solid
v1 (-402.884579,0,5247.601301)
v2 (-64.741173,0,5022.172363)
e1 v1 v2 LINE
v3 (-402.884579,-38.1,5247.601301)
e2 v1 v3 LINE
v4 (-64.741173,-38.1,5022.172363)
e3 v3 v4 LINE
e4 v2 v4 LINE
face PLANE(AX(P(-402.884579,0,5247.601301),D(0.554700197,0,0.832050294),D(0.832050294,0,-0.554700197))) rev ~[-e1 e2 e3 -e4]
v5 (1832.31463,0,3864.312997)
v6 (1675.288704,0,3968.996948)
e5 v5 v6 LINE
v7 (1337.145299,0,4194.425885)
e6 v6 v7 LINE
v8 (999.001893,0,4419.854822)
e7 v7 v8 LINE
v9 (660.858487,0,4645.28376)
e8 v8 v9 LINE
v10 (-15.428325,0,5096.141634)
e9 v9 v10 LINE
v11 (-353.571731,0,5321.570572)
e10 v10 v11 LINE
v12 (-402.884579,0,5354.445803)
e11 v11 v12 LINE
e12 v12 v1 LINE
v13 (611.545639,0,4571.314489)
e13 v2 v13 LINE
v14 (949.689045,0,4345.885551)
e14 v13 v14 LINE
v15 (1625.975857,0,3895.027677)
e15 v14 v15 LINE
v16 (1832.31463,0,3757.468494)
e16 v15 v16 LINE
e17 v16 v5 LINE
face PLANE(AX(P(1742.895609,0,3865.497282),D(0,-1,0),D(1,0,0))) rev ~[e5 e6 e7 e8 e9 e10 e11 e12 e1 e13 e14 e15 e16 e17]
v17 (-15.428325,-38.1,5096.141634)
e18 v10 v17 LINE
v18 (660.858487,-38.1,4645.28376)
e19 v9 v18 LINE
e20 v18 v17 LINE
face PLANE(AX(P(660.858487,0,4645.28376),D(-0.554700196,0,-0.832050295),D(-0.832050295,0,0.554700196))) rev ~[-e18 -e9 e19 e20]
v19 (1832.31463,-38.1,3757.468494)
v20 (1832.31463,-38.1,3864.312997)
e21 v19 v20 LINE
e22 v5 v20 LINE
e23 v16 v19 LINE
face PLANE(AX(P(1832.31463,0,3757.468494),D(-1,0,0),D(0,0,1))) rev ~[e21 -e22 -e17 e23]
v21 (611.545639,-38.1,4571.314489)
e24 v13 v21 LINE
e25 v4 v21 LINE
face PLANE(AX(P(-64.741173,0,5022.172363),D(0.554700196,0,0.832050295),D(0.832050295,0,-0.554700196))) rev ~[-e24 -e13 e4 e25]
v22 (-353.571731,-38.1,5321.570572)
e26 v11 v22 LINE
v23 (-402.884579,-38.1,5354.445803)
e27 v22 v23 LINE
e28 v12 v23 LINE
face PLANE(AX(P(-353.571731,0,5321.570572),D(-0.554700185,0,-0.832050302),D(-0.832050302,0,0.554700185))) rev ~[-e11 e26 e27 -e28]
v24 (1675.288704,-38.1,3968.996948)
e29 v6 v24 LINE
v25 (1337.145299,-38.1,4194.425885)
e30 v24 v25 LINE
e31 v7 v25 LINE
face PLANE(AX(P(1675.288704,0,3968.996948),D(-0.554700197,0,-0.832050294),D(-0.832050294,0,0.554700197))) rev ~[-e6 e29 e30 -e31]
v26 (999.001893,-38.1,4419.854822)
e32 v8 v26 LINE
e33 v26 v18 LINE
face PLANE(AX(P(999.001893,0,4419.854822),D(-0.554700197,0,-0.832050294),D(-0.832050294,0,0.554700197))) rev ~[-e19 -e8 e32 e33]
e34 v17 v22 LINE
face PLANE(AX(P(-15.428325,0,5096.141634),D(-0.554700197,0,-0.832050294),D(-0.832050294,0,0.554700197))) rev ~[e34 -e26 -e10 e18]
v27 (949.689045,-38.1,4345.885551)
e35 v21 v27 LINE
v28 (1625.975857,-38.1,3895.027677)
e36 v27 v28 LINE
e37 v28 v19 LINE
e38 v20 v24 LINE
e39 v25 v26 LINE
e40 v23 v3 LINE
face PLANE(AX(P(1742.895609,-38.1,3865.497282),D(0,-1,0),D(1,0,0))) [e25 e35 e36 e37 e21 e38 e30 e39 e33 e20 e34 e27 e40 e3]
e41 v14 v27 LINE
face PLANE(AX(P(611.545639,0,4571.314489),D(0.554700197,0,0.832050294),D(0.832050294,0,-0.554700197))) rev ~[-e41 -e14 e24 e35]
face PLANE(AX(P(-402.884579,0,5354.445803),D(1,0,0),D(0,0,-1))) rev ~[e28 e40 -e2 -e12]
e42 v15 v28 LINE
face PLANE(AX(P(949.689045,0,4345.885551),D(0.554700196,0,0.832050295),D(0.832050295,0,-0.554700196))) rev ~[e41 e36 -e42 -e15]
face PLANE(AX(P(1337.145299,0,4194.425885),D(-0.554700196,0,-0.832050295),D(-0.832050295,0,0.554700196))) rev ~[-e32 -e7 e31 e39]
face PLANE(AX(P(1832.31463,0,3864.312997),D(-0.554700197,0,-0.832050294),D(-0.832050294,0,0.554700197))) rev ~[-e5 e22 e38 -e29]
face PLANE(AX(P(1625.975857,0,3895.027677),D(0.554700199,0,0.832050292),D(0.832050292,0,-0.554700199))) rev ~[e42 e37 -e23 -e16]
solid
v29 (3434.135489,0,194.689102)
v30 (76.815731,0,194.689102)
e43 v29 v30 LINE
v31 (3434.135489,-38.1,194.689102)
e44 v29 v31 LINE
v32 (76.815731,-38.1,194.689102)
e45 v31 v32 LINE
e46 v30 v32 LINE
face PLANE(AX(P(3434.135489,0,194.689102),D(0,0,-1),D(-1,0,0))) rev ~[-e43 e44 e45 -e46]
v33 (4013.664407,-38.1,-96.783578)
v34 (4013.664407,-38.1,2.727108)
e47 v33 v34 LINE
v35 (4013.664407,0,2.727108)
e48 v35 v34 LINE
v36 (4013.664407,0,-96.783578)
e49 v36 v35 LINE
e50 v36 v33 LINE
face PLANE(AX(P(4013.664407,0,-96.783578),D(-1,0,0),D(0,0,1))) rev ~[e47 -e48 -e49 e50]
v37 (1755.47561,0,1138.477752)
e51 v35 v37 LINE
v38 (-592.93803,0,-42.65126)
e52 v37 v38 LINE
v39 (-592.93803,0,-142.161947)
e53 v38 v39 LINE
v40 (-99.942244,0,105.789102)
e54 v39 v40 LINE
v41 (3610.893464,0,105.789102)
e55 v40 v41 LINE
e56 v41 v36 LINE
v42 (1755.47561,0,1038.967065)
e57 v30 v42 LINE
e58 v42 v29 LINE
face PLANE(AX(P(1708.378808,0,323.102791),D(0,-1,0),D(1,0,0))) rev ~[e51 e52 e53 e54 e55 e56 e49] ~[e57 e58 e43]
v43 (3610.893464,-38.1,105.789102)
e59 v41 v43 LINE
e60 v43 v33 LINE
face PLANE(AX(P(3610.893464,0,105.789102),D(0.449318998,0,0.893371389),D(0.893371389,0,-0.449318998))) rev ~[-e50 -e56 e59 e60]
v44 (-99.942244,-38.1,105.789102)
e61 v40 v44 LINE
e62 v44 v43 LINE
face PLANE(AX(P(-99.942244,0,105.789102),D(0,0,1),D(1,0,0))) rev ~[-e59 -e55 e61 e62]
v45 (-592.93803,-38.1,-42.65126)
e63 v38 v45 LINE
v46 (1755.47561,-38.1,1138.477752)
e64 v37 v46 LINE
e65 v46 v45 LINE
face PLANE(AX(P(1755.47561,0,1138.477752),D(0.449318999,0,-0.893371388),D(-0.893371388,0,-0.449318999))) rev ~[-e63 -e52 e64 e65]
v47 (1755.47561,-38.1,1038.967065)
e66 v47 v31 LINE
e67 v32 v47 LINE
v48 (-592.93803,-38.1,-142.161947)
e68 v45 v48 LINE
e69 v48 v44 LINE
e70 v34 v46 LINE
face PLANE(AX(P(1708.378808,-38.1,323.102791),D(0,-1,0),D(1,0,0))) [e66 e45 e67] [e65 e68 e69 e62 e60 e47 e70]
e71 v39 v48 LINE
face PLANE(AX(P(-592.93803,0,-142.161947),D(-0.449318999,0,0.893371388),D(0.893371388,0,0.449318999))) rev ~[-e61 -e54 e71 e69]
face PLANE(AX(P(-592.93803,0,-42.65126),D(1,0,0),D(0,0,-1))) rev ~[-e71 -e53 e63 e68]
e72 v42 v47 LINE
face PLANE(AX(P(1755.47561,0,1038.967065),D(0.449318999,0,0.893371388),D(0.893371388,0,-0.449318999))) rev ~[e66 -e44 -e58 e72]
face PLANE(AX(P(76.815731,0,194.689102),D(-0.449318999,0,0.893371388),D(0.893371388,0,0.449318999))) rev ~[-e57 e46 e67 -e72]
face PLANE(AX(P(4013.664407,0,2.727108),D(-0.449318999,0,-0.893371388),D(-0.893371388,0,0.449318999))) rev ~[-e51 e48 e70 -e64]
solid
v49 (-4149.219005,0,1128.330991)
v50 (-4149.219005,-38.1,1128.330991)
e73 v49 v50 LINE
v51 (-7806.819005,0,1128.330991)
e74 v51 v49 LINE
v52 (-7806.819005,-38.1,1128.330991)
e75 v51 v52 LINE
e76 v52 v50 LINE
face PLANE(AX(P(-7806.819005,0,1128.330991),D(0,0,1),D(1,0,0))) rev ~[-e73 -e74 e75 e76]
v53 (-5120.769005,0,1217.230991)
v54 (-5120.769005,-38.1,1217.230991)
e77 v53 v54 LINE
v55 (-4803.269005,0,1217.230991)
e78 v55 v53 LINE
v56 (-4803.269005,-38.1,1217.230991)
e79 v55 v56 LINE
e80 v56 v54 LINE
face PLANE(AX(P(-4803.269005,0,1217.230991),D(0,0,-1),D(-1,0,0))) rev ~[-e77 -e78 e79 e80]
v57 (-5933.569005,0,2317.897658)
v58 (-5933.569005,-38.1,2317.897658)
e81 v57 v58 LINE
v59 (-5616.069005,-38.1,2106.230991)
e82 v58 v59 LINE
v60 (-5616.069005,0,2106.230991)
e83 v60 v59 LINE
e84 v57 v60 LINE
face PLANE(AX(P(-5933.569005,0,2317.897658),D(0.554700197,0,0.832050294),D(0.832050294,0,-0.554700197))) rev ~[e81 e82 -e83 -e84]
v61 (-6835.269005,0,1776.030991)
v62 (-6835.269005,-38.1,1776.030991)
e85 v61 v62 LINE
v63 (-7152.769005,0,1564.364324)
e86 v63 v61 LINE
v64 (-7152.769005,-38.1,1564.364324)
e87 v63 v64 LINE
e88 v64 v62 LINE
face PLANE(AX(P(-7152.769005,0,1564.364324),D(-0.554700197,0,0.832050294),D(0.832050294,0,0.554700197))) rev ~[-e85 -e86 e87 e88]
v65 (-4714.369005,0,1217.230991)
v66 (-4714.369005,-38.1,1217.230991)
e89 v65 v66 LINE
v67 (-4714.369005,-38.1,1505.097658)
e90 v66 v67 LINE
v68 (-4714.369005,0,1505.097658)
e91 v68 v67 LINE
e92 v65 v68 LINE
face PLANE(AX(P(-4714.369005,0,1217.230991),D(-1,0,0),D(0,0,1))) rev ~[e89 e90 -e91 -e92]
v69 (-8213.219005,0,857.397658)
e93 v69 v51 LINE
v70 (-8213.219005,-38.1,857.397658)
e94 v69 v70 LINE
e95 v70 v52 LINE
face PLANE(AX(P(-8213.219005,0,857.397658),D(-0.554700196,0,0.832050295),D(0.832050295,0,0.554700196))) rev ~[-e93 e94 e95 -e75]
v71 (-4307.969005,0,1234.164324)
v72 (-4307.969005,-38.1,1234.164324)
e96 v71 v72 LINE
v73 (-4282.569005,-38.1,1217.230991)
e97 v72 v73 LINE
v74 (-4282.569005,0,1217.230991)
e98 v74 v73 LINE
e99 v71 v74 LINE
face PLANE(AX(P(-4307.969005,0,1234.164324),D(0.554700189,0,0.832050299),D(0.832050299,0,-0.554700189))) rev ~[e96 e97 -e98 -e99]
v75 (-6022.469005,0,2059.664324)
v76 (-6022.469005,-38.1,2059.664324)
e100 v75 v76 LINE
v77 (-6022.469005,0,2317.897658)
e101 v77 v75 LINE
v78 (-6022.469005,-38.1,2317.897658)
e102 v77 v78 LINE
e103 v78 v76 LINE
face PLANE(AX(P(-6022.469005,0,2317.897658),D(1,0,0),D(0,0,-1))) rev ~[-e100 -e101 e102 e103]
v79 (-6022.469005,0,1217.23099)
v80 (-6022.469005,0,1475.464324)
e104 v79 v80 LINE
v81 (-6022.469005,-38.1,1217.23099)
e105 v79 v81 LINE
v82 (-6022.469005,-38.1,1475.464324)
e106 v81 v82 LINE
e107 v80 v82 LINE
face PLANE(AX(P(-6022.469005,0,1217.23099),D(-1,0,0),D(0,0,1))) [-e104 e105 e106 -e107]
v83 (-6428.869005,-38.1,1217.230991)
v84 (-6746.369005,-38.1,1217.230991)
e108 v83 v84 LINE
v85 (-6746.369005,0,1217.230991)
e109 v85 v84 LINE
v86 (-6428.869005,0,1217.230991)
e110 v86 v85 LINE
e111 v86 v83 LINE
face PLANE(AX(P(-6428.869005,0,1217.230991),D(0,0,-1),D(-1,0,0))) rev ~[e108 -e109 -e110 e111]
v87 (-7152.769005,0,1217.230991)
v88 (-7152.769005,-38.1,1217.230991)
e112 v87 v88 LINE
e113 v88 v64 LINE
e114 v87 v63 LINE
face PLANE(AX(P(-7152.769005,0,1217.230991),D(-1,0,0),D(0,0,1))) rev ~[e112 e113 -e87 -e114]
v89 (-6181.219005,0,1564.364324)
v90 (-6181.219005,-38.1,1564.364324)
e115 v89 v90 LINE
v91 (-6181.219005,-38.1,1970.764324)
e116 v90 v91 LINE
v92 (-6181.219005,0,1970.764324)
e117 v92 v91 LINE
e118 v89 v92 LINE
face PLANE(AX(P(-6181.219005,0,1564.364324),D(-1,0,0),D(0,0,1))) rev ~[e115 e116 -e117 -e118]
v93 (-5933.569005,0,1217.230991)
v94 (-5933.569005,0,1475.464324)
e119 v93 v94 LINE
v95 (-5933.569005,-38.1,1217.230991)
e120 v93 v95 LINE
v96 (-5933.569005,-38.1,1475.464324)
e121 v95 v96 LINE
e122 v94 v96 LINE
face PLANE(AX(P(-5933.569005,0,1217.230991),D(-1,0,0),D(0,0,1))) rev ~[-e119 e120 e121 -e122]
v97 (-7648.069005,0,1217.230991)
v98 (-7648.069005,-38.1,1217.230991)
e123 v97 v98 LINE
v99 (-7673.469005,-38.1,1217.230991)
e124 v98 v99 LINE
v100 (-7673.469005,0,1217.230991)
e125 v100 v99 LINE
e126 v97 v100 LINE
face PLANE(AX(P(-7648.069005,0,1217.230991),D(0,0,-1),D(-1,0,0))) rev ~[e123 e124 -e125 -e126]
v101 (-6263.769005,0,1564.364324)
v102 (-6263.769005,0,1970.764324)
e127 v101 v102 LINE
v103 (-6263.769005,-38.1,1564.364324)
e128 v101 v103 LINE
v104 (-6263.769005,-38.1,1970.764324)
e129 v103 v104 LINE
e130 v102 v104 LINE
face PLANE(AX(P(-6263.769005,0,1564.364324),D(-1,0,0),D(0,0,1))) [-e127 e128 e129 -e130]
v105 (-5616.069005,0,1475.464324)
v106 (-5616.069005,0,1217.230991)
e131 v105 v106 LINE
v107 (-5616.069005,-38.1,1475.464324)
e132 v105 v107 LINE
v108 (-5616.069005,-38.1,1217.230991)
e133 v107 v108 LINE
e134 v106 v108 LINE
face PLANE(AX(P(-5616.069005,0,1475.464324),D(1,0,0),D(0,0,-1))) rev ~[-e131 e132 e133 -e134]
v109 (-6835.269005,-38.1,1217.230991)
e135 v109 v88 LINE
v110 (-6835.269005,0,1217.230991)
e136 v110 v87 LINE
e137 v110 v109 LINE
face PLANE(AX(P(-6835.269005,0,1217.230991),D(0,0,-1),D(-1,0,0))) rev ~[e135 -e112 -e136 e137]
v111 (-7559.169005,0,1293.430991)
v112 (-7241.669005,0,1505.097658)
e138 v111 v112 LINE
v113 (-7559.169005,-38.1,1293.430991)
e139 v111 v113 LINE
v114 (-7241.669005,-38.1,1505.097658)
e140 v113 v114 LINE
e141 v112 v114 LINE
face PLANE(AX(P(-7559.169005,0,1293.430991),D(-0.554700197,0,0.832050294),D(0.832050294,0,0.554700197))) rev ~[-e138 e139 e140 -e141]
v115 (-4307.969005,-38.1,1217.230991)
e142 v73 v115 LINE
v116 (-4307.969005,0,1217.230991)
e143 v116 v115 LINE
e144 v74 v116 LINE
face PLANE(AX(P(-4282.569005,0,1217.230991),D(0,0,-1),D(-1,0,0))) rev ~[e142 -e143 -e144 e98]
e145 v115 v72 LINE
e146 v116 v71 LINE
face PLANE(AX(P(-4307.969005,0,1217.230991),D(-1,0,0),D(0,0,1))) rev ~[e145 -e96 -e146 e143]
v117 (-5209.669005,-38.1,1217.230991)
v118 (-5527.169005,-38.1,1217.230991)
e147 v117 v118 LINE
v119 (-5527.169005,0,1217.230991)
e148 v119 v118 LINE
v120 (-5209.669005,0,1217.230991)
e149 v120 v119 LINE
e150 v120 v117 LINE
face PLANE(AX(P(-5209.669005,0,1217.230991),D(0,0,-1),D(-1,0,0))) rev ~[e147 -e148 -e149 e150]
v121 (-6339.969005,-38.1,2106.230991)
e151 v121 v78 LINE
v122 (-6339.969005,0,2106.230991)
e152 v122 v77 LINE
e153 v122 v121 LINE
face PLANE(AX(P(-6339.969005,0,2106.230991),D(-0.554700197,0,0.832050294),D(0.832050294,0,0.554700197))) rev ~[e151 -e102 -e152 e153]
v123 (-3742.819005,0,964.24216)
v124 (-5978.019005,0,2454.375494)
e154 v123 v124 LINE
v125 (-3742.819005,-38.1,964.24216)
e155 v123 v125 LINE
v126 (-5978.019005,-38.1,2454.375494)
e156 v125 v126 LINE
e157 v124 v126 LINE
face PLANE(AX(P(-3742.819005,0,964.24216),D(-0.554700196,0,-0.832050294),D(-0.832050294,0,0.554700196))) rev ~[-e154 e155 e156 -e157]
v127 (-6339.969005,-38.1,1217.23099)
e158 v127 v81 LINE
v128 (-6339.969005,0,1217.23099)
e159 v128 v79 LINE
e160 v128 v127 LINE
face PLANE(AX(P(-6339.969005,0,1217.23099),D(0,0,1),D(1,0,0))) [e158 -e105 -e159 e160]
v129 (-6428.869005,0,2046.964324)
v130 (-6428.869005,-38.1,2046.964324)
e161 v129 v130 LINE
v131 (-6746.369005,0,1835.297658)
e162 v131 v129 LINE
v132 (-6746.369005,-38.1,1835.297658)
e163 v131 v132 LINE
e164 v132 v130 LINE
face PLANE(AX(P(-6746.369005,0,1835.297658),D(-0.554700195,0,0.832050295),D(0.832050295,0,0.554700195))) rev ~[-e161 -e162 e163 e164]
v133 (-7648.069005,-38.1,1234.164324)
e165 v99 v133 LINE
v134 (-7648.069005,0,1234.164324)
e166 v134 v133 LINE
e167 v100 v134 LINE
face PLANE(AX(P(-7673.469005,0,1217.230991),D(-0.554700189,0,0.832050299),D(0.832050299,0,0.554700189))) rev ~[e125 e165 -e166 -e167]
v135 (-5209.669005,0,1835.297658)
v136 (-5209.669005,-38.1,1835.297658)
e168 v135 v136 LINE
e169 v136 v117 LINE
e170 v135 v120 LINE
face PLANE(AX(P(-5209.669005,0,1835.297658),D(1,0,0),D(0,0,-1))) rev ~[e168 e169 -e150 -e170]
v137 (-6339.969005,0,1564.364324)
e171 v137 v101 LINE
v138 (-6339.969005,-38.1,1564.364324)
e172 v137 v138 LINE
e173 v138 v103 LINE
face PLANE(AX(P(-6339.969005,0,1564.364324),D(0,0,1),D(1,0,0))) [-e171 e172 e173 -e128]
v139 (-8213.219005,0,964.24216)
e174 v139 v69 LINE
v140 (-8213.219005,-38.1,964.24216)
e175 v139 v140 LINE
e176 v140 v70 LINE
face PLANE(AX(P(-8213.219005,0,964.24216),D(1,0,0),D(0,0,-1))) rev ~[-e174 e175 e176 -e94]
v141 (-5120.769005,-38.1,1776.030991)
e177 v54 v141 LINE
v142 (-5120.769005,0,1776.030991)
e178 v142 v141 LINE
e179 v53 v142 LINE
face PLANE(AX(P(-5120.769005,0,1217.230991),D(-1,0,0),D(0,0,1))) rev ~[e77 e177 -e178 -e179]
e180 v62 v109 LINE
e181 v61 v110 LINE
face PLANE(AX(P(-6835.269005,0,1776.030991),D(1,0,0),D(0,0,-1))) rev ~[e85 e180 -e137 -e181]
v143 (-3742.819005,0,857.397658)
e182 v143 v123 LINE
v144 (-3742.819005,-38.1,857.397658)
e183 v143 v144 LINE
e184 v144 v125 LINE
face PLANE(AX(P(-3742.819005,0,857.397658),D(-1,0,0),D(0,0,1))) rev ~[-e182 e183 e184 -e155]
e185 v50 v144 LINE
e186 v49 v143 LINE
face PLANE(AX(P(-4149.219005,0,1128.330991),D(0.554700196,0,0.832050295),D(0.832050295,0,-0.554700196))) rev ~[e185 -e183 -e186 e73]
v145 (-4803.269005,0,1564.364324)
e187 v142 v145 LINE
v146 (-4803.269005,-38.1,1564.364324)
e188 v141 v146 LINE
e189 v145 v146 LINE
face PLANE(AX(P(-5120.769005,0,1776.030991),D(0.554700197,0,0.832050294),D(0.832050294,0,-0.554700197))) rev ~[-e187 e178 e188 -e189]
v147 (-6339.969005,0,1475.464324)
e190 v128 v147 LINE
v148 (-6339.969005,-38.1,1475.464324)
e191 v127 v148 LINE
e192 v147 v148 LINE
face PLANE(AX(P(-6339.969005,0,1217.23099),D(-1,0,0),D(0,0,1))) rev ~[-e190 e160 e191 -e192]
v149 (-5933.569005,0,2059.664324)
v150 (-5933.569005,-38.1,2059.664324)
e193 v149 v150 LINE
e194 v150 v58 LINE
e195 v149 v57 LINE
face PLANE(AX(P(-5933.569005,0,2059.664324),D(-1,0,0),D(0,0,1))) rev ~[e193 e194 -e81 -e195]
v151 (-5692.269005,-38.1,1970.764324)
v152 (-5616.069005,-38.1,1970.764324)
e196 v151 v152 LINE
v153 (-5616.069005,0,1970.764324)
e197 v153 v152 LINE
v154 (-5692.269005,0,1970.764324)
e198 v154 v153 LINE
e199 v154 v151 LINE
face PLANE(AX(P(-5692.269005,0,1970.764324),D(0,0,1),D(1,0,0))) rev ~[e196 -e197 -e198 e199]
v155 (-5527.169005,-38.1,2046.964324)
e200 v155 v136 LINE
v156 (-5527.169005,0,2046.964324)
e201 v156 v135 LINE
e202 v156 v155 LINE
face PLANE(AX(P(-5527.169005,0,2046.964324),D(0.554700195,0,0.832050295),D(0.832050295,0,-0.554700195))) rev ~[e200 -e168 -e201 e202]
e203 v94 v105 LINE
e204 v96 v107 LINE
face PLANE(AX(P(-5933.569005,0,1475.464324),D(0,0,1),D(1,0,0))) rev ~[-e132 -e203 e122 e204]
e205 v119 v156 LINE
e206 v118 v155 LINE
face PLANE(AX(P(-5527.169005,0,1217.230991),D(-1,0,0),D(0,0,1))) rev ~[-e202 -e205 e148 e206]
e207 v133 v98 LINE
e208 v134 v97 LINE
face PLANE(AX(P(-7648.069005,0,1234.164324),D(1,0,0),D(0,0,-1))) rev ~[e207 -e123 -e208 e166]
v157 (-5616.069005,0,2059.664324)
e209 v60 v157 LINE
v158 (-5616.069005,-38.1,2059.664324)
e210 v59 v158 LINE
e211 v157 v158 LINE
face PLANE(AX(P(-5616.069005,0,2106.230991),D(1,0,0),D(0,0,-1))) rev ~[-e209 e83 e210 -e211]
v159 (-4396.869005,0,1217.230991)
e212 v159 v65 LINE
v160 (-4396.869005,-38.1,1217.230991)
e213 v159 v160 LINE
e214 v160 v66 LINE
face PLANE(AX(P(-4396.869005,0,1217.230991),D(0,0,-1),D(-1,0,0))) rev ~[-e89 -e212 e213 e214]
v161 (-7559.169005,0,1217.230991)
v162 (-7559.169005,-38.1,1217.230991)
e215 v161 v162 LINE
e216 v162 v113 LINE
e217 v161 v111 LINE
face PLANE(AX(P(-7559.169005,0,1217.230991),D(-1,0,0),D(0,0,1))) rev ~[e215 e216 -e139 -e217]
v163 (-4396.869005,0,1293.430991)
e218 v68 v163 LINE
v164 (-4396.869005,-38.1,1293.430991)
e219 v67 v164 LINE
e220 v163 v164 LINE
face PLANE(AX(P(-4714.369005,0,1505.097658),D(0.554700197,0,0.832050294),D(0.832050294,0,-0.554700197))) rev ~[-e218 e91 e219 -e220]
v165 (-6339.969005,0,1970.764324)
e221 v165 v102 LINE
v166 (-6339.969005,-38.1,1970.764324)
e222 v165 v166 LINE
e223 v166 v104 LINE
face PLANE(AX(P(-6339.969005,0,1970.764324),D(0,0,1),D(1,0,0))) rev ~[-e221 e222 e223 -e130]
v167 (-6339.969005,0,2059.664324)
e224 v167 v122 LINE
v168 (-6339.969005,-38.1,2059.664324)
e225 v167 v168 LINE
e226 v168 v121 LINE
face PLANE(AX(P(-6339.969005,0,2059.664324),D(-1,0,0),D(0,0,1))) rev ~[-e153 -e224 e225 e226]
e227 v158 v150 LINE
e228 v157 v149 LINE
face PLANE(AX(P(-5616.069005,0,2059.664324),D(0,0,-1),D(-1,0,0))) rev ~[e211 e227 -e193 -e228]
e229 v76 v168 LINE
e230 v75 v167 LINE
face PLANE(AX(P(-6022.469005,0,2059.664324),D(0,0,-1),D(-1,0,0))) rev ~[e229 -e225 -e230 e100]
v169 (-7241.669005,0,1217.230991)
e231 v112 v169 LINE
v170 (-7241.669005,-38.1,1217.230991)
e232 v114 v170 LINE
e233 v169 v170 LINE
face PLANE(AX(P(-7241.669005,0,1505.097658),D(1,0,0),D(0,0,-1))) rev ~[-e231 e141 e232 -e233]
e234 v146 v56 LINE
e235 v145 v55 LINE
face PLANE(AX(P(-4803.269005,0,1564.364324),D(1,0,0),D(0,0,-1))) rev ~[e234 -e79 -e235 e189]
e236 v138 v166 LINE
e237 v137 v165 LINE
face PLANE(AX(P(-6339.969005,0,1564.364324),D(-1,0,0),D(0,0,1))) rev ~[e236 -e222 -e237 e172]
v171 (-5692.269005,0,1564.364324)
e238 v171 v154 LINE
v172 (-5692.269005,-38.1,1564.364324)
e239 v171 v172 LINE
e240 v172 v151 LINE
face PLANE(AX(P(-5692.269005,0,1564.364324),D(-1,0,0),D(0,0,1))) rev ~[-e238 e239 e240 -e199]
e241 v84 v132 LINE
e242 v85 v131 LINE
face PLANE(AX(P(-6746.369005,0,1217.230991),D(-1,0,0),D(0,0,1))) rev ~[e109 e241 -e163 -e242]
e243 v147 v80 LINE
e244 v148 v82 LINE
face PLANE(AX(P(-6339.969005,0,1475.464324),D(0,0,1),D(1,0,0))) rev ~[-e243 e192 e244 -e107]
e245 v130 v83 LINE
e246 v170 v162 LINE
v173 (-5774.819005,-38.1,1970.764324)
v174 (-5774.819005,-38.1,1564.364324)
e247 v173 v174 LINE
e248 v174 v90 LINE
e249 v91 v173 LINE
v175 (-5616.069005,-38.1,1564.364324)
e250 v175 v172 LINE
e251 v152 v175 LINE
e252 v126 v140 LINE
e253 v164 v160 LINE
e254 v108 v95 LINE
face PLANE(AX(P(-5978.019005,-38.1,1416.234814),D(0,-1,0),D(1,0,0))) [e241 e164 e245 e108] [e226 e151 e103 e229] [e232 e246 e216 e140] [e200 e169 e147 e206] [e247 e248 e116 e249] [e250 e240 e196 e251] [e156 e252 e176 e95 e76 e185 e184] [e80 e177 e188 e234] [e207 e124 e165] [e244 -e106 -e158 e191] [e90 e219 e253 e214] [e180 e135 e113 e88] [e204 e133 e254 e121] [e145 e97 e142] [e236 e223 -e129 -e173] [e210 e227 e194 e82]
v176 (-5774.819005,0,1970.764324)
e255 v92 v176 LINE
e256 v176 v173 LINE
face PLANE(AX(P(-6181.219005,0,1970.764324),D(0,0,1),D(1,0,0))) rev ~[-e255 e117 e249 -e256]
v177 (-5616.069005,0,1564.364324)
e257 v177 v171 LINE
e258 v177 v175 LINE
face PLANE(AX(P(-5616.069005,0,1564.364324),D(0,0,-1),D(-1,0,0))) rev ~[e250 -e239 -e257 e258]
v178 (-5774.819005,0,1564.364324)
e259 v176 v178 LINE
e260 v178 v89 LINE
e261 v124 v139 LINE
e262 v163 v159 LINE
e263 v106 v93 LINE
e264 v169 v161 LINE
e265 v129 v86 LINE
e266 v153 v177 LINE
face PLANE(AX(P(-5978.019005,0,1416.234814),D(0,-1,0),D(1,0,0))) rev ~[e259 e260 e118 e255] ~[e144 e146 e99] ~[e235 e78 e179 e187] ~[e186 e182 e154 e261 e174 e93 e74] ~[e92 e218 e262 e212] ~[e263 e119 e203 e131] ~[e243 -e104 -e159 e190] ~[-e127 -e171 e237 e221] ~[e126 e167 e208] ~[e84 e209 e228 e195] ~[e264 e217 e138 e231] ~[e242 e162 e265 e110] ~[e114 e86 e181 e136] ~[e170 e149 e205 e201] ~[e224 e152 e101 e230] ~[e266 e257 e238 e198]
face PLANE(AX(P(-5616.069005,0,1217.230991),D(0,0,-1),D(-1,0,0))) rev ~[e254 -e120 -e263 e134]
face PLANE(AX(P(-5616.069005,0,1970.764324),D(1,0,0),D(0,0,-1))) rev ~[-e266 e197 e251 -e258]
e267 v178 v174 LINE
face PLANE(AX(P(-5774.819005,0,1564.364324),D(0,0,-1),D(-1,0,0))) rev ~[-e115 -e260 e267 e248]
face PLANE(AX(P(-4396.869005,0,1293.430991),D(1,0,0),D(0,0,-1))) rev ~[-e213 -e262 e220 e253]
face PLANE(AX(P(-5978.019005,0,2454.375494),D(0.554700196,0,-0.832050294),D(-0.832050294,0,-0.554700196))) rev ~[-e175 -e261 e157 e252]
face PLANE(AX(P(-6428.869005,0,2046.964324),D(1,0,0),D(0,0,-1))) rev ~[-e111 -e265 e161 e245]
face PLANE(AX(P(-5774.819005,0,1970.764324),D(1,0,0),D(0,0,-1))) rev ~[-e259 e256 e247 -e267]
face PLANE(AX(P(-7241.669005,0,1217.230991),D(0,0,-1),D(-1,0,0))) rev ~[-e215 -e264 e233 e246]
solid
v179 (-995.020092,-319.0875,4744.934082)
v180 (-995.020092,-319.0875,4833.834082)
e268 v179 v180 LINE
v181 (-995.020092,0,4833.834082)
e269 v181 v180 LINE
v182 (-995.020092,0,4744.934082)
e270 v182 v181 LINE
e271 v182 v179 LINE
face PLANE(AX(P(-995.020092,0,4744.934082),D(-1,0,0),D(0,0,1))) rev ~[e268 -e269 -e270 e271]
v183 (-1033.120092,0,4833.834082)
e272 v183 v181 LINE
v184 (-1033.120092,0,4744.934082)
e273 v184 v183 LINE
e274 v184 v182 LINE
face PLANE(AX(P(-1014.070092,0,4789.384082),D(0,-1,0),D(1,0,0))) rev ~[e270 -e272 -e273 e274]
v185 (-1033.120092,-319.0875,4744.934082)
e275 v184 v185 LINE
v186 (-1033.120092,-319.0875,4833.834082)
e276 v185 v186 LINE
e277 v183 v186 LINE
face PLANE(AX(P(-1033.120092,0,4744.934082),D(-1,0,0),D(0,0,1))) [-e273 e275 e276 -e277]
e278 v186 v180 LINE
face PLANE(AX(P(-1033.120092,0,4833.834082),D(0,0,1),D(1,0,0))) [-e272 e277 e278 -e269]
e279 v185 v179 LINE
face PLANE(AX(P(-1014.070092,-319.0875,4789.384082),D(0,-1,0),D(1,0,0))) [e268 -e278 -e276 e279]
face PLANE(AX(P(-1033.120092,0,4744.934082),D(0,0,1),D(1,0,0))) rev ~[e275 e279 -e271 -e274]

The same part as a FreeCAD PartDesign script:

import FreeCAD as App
import Part
import Sketcher

V = App.Vector
Q = App.Units.Quantity

doc = App.newDocument("Part")
body = doc.addObject("PartDesign::Body", "Body")

# Sketch on XZ plane
sketch1 = body.newObject("Sketcher::SketchObject", "Sketch")
sketch1.AttachmentSupport = (doc.getObject("XZ_Plane"), [""])
sketch1.MapMode = "FlatFace"
sketch1.addGeometry([
    Part.LineSegment(V(-593, -142, 0), V(-100, 106, 0)),  # 0
    Part.LineSegment(V(-100, 106, 0), V(3611, 106, 0)),  # 1
    Part.LineSegment(V(3611, 106, 0), V(4014, -97, 0)),  # 2
    Part.LineSegment(V(4014, -97, 0), V(4014, 3, 0)),  # 3
    Part.LineSegment(V(4014, 3, 0), V(1755, 1138, 0)),  # 4
    Part.LineSegment(V(1755, 1138, 0), V(-593, -43, 0)),  # 5
    Part.LineSegment(V(-593, -43, 0), V(-593, -142, 0)),  # 6
    Part.LineSegment(V(1755, 1039, 0), V(3434, 195, 0)),  # 7
    Part.LineSegment(V(3434, 195, 0), V(77, 195, 0)),  # 8
    Part.LineSegment(V(77, 195, 0), V(1755, 1039, 0)),  # 9
], False)
sketch1.addConstraint([
    Sketcher.Constraint("Coincident", 0, 2, 1, 1),
    Sketcher.Constraint("Coincident", 1, 2, 2, 1),
    Sketcher.Constraint("Coincident", 2, 2, 3, 1),
    Sketcher.Constraint("Coincident", 3, 2, 4, 1),
    Sketcher.Constraint("Coincident", 4, 2, 5, 1),
    Sketcher.Constraint("Coincident", 5, 2, 6, 1),
    Sketcher.Constraint("Coincident", 6, 2, 0, 1),
    Sketcher.Constraint("Coincident", 7, 2, 8, 1),
    Sketcher.Constraint("Coincident", 8, 2, 9, 1),
    Sketcher.Constraint("Coincident", 9, 2, 7, 1),
    Sketcher.Constraint("Horizontal", 1),
    Sketcher.Constraint("Vertical", 3),
    Sketcher.Constraint("Vertical", 6),
    Sketcher.Constraint("Horizontal", 8),
    Sketcher.Constraint("Parallel", 2, 4),
    Sketcher.Constraint("Parallel", 0, 5),
    Sketcher.Constraint("Parallel", 4, 7),
    Sketcher.Constraint("Parallel", 5, 9),
    Sketcher.Constraint("Vertical", 4, 2, 9, 2),
    Sketcher.Constraint("Equal", 3, 6),
    Sketcher.Constraint("Equal", 7, 9),
    Sketcher.Constraint("Angle", 0, Q("26.7 deg")),
    Sketcher.Constraint("DistanceY", 1, 2, 7, 2, Q("3.5 in")),
    Sketcher.Constraint("DistanceX", 1, 1, 1, 2, Q("3710.835708 mm")),
    Sketcher.Constraint("DistanceY", -1, 1, 0, 2, Q("105.789102 mm")),
    Sketcher.Constraint("DistanceY", 6, 2, 4, 2, Q("1280.639699 mm")),
    Sketcher.Constraint("Distance", 2, Q("450.84379 mm")),
    Sketcher.Constraint("Distance", 5, Q("2628.709259 mm")),
    Sketcher.Constraint("DistanceX", 8, 2, 8, 1, Q("3357.319758 mm")),
    Sketcher.Constraint("DistanceX", -1, 1, 4, 2, Q("1755.47561 mm")),
])
pad1 = body.newObject("PartDesign::Pad", "Pad")
pad1.Profile = sketch1
pad1.Length = Q("1.5 in")
body2 = doc.addObject("PartDesign::Body", "Body001")

# Sketch on XZ plane
sketch2 = body2.newObject("Sketcher::SketchObject", "Sketch001")
sketch2.AttachmentSupport = (doc.getObject("XZ_Plane001"), [""])
sketch2.MapMode = "FlatFace"
sketch2.addGeometry([
    Part.LineSegment(V(-8213.219005, 857.397658, 0), V(-7806.819005, 1128.330991, 0)),  # 0
    Part.LineSegment(V(-7806.819005, 1128.330991, 0), V(-4149.219005, 1128.330991, 0)),  # 1
    Part.LineSegment(V(-4149.219005, 1128.330991, 0), V(-3742.819005, 857.397658, 0)),  # 2
    Part.LineSegment(V(-3742.819005, 857.397658, 0), V(-3742.819005, 964.24216, 0)),  # 3
    Part.LineSegment(V(-3742.819005, 964.24216, 0), V(-5978.019005, 2454.375494, 0)),  # 4
    Part.LineSegment(V(-5978.019005, 2454.375494, 0), V(-8213.219005, 964.24216, 0)),  # 5
    Part.LineSegment(V(-8213.219005, 964.24216, 0), V(-8213.219005, 857.397658, 0)),  # 6
    Part.LineSegment(V(-7673.469005, 1217.230991, 0), V(-7648.069005, 1234.164324, 0)),  # 7
    Part.LineSegment(V(-7648.069005, 1234.164324, 0), V(-7648.069005, 1217.230991, 0)),  # 8
    Part.LineSegment(V(-7648.069005, 1217.230991, 0), V(-7673.469005, 1217.230991, 0)),  # 9
    Part.LineSegment(V(-7559.169005, 1293.430991, 0), V(-7241.669005, 1505.097658, 0)),  # 10
    Part.LineSegment(V(-7241.669005, 1505.097658, 0), V(-7241.669005, 1217.230991, 0)),  # 11
    Part.LineSegment(V(-7241.669005, 1217.230991, 0), V(-7559.169005, 1217.230991, 0)),  # 12
    Part.LineSegment(V(-7559.169005, 1217.230991, 0), V(-7559.169005, 1293.430991, 0)),  # 13
    Part.LineSegment(V(-6022.469005, 1217.23099, 0), V(-6339.969005, 1217.23099, 0)),  # 14
    Part.LineSegment(V(-6339.969005, 1217.23099, 0), V(-6339.969005, 1475.464324, 0)),  # 15
    Part.LineSegment(V(-6339.969005, 1475.464324, 0), V(-6022.469005, 1475.464324, 0)),  # 16
    Part.LineSegment(V(-6022.469005, 1475.464324, 0), V(-6022.469005, 1217.23099, 0)),  # 17
    Part.LineSegment(V(-7152.769005, 1564.364324, 0), V(-6835.269005, 1776.030991, 0)),  # 18
    Part.LineSegment(V(-6835.269005, 1776.030991, 0), V(-6835.269005, 1217.230991, 0)),  # 19
    Part.LineSegment(V(-6835.269005, 1217.230991, 0), V(-7152.769005, 1217.230991, 0)),  # 20
    Part.LineSegment(V(-7152.769005, 1217.230991, 0), V(-7152.769005, 1564.364324, 0)),  # 21
    Part.LineSegment(V(-6746.369005, 1835.297658, 0), V(-6428.869005, 2046.964324, 0)),  # 22
    Part.LineSegment(V(-6428.869005, 2046.964324, 0), V(-6428.869005, 1217.230991, 0)),  # 23
    Part.LineSegment(V(-6428.869005, 1217.230991, 0), V(-6746.369005, 1217.230991, 0)),  # 24
    Part.LineSegment(V(-6746.369005, 1217.230991, 0), V(-6746.369005, 1835.297658, 0)),  # 25
    Part.LineSegment(V(-6263.769005, 1564.364324, 0), V(-6339.969005, 1564.364324, 0)),  # 26
    Part.LineSegment(V(-6339.969005, 1564.364324, 0), V(-6339.969005, 1970.764324, 0)),  # 27
    Part.LineSegment(V(-6339.969005, 1970.764324, 0), V(-6263.769005, 1970.764324, 0)),  # 28
    Part.LineSegment(V(-6263.769005, 1970.764324, 0), V(-6263.769005, 1564.364324, 0)),  # 29
    Part.LineSegment(V(-5616.069005, 1217.230991, 0), V(-5933.569005, 1217.230991, 0)),  # 30
    Part.LineSegment(V(-5933.569005, 1217.230991, 0), V(-5933.569005, 1475.464324, 0)),  # 31
    Part.LineSegment(V(-5933.569005, 1475.464324, 0), V(-5616.069005, 1475.464324, 0)),  # 32
    Part.LineSegment(V(-5616.069005, 1475.464324, 0), V(-5616.069005, 1217.230991, 0)),  # 33
    Part.LineSegment(V(-4307.969005, 1234.164324, 0), V(-4282.569005, 1217.230991, 0)),  # 34
    Part.LineSegment(V(-4282.569005, 1217.230991, 0), V(-4307.969005, 1217.230991, 0)),  # 35
    Part.LineSegment(V(-4307.969005, 1217.230991, 0), V(-4307.969005, 1234.164324, 0)),  # 36
    Part.LineSegment(V(-4396.869005, 1217.230991, 0), V(-4714.369005, 1217.230991, 0)),  # 37
    Part.LineSegment(V(-4714.369005, 1217.230991, 0), V(-4714.369005, 1505.097658, 0)),  # 38
    Part.LineSegment(V(-4714.369005, 1505.097658, 0), V(-4396.869005, 1293.430991, 0)),  # 39
    Part.LineSegment(V(-4396.869005, 1293.430991, 0), V(-4396.869005, 1217.230991, 0)),  # 40
    Part.LineSegment(V(-5774.819005, 1970.764324, 0), V(-5774.819005, 1564.364324, 0)),  # 41
    Part.LineSegment(V(-5774.819005, 1564.364324, 0), V(-6181.219005, 1564.364324, 0)),  # 42
    Part.LineSegment(V(-6181.219005, 1564.364324, 0), V(-6181.219005, 1970.764324, 0)),  # 43
    Part.LineSegment(V(-6181.219005, 1970.764324, 0), V(-5774.819005, 1970.764324, 0)),  # 44
    Part.LineSegment(V(-5692.269005, 1564.364324, 0), V(-5692.269005, 1970.764324, 0)),  # 45
    Part.LineSegment(V(-5692.269005, 1970.764324, 0), V(-5616.069005, 1970.764324, 0)),  # 46
    Part.LineSegment(V(-5616.069005, 1970.764324, 0), V(-5616.069005, 1564.364324, 0)),  # 47
    Part.LineSegment(V(-5616.069005, 1564.364324, 0), V(-5692.269005, 1564.364324, 0)),  # 48
    Part.LineSegment(V(-5209.669005, 1217.230991, 0), V(-5527.169005, 1217.230991, 0)),  # 49
    Part.LineSegment(V(-5527.169005, 1217.230991, 0), V(-5527.169005, 2046.964324, 0)),  # 50
    Part.LineSegment(V(-5527.169005, 2046.964324, 0), V(-5209.669005, 1835.297658, 0)),  # 51
    Part.LineSegment(V(-5209.669005, 1835.297658, 0), V(-5209.669005, 1217.230991, 0)),  # 52
    Part.LineSegment(V(-4803.269005, 1217.230991, 0), V(-5120.769005, 1217.230991, 0)),  # 53
    Part.LineSegment(V(-5120.769005, 1217.230991, 0), V(-5120.769005, 1776.030991, 0)),  # 54
    Part.LineSegment(V(-5120.769005, 1776.030991, 0), V(-4803.269005, 1564.364324, 0)),  # 55
    Part.LineSegment(V(-4803.269005, 1564.364324, 0), V(-4803.269005, 1217.230991, 0)),  # 56
    Part.LineSegment(V(-6339.969005, 2106.230991, 0), V(-6022.469005, 2317.897658, 0)),  # 57
    Part.LineSegment(V(-6022.469005, 2317.897658, 0), V(-6022.469005, 2059.664324, 0)),  # 58
    Part.LineSegment(V(-6022.469005, 2059.664324, 0), V(-6339.969005, 2059.664324, 0)),  # 59
    Part.LineSegment(V(-6339.969005, 2059.664324, 0), V(-6339.969005, 2106.230991, 0)),  # 60
    Part.LineSegment(V(-5933.569005, 2317.897658, 0), V(-5616.069005, 2106.230991, 0)),  # 61
    Part.LineSegment(V(-5616.069005, 2106.230991, 0), V(-5616.069005, 2059.664324, 0)),  # 62
    Part.LineSegment(V(-5616.069005, 2059.664324, 0), V(-5933.569005, 2059.664324, 0)),  # 63
    Part.LineSegment(V(-5933.569005, 2059.664324, 0), V(-5933.569005, 2317.897658, 0)),  # 64
], False)
sketch2.addConstraint([
    Sketcher.Constraint("Coincident", 0, 2, 1, 1),
    Sketcher.Constraint("Coincident", 1, 2, 2, 1),
    Sketcher.Constraint("Coincident", 2, 2, 3, 1),
    Sketcher.Constraint("Coincident", 3, 2, 4, 1),
    Sketcher.Constraint("Coincident", 4, 2, 5, 1),
    Sketcher.Constraint("Coincident", 5, 2, 6, 1),
    Sketcher.Constraint("Coincident", 6, 2, 0, 1),
    Sketcher.Constraint("Coincident", 7, 2, 8, 1),
    Sketcher.Constraint("Coincident", 8, 2, 9, 1),
    Sketcher.Constraint("Coincident", 9, 2, 7, 1),
    Sketcher.Constraint("Coincident", 10, 2, 11, 1),
    Sketcher.Constraint("Coincident", 11, 2, 12, 1),
    Sketcher.Constraint("Coincident", 12, 2, 13, 1),
    Sketcher.Constraint("Coincident", 13, 2, 10, 1),
    Sketcher.Constraint("Coincident", 14, 2, 15, 1),
    Sketcher.Constraint("Coincident", 15, 2, 16, 1),
    Sketcher.Constraint("Coincident", 16, 2, 17, 1),
    Sketcher.Constraint("Coincident", 17, 2, 14, 1),
    Sketcher.Constraint("Coincident", 18, 2, 19, 1),
    Sketcher.Constraint("Coincident", 19, 2, 20, 1),
    Sketcher.Constraint("Coincident", 20, 2, 21, 1),
    Sketcher.Constraint("Coincident", 21, 2, 18, 1),
    Sketcher.Constraint("Coincident", 22, 2, 23, 1),
    Sketcher.Constraint("Coincident", 23, 2, 24, 1),
    Sketcher.Constraint("Coincident", 24, 2, 25, 1),
    Sketcher.Constraint("Coincident", 25, 2, 22, 1),
    Sketcher.Constraint("Coincident", 26, 2, 27, 1),
    Sketcher.Constraint("Coincident", 27, 2, 28, 1),
    Sketcher.Constraint("Coincident", 28, 2, 29, 1),
    Sketcher.Constraint("Coincident", 29, 2, 26, 1),
    Sketcher.Constraint("Coincident", 30, 2, 31, 1),
    Sketcher.Constraint("Coincident", 31, 2, 32, 1),
    Sketcher.Constraint("Coincident", 32, 2, 33, 1),
    Sketcher.Constraint("Coincident", 33, 2, 30, 1),
    Sketcher.Constraint("Coincident", 34, 2, 35, 1),
    Sketcher.Constraint("Coincident", 35, 2, 36, 1),
    Sketcher.Constraint("Coincident", 36, 2, 34, 1),
    Sketcher.Constraint("Coincident", 37, 2, 38, 1),
    Sketcher.Constraint("Coincident", 38, 2, 39, 1),
    Sketcher.Constraint("Coincident", 39, 2, 40, 1),
    Sketcher.Constraint("Coincident", 40, 2, 37, 1),
    Sketcher.Constraint("Coincident", 41, 2, 42, 1),
    Sketcher.Constraint("Coincident", 42, 2, 43, 1),
    Sketcher.Constraint("Coincident", 43, 2, 44, 1),
    Sketcher.Constraint("Coincident", 44, 2, 41, 1),
    Sketcher.Constraint("Coincident", 45, 2, 46, 1),
    Sketcher.Constraint("Coincident", 46, 2, 47, 1),
    Sketcher.Constraint("Coincident", 47, 2, 48, 1),
    Sketcher.Constraint("Coincident", 48, 2, 45, 1),
    Sketcher.Constraint("Coincident", 49, 2, 50, 1),
    Sketcher.Constraint("Coincident", 50, 2, 51, 1),
    Sketcher.Constraint("Coincident", 51, 2, 52, 1),
    Sketcher.Constraint("Coincident", 52, 2, 49, 1),
    Sketcher.Constraint("Coincident", 53, 2, 54, 1),
    Sketcher.Constraint("Coincident", 54, 2, 55, 1),
    Sketcher.Constraint("Coincident", 55, 2, 56, 1),
    Sketcher.Constraint("Coincident", 56, 2, 53, 1),
    Sketcher.Constraint("Coincident", 57, 2, 58, 1),
    Sketcher.Constraint("Coincident", 58, 2, 59, 1),
    Sketcher.Constraint("Coincident", 59, 2, 60, 1),
    Sketcher.Constraint("Coincident", 60, 2, 57, 1),
    Sketcher.Constraint("Coincident", 61, 2, 62, 1),
    Sketcher.Constraint("Coincident", 62, 2, 63, 1),
    Sketcher.Constraint("Coincident", 63, 2, 64, 1),
    Sketcher.Constraint("Coincident", 64, 2, 61, 1),
    Sketcher.Constraint("Horizontal", 1),
    Sketcher.Constraint("Vertical", 3),
    Sketcher.Constraint("Vertical", 6),
    Sketcher.Constraint("Vertical", 8),
    Sketcher.Constraint("Horizontal", 9),
    Sketcher.Constraint("Vertical", 11),
    Sketcher.Constraint("Horizontal", 12),
    Sketcher.Constraint("Vertical", 13),
    Sketcher.Constraint("Horizontal", 14),
    Sketcher.Constraint("Vertical", 15),
    Sketcher.Constraint("Horizontal", 16),
    Sketcher.Constraint("Vertical", 17),
    Sketcher.Constraint("Vertical", 19),
    Sketcher.Constraint("Horizontal", 20),
    Sketcher.Constraint("Vertical", 21),
    Sketcher.Constraint("Vertical", 23),
    Sketcher.Constraint("Horizontal", 24),
    Sketcher.Constraint("Vertical", 25),
    Sketcher.Constraint("Horizontal", 26),
    Sketcher.Constraint("Vertical", 27),
    Sketcher.Constraint("Horizontal", 28),
    Sketcher.Constraint("Vertical", 29),
    Sketcher.Constraint("Horizontal", 30),
    Sketcher.Constraint("Vertical", 31),
    Sketcher.Constraint("Horizontal", 32),
    Sketcher.Constraint("Vertical", 33),
    Sketcher.Constraint("Horizontal", 35),
    Sketcher.Constraint("Vertical", 36),
    Sketcher.Constraint("Horizontal", 37),
    Sketcher.Constraint("Vertical", 38),
    Sketcher.Constraint("Vertical", 40),
    Sketcher.Constraint("Vertical", 41),
    Sketcher.Constraint("Horizontal", 42),
    Sketcher.Constraint("Vertical", 43),
    Sketcher.Constraint("Horizontal", 44),
    Sketcher.Constraint("Vertical", 45),
    Sketcher.Constraint("Horizontal", 46),
    Sketcher.Constraint("Vertical", 47),
    Sketcher.Constraint("Horizontal", 48),
    Sketcher.Constraint("Horizontal", 49),
    Sketcher.Constraint("Vertical", 50),
    Sketcher.Constraint("Vertical", 52),
    Sketcher.Constraint("Horizontal", 53),
    Sketcher.Constraint("Vertical", 54),
    Sketcher.Constraint("Vertical", 56),
    Sketcher.Constraint("Vertical", 58),
    Sketcher.Constraint("Horizontal", 59),
    Sketcher.Constraint("Vertical", 60),
    Sketcher.Constraint("Vertical", 62),
    Sketcher.Constraint("Horizontal", 63),
    Sketcher.Constraint("Vertical", 64),
    Sketcher.Constraint("Parallel", 2, 4),
    Sketcher.Constraint("Parallel", 0, 5),
    Sketcher.Constraint("Parallel", 5, 7),
    Sketcher.Constraint("Parallel", 7, 10),
    Sketcher.Constraint("Parallel", 10, 18),
    Sketcher.Constraint("Parallel", 18, 22),
    Sketcher.Constraint("Parallel", 4, 34),
    Sketcher.Constraint("Parallel", 34, 39),
    Sketcher.Constraint("Parallel", 39, 51),
    Sketcher.Constraint("Parallel", 51, 55),
    Sketcher.Constraint("Parallel", 22, 57),
    Sketcher.Constraint("Parallel", 55, 61),
    Sketcher.Constraint("Horizontal", 3, 2, 5, 2),
    Sketcher.Constraint("Horizontal", 2, 2, 6, 2),
    Sketcher.Constraint("Horizontal", 9, 2, 11, 2),
    Sketcher.Constraint("Horizontal", 12, 2, 14, 2),
    Sketcher.Constraint("Horizontal", 17, 2, 19, 2),
    Sketcher.Constraint("Horizontal", 20, 2, 23, 2),
    Sketcher.Constraint("Horizontal", 21, 2, 26, 2),
    Sketcher.Constraint("Horizontal", 24, 2, 30, 2),
    Sketcher.Constraint("Horizontal", 16, 2, 31, 2),
    Sketcher.Constraint("Horizontal", 33, 2, 34, 2),
    Sketcher.Constraint("Horizontal", 7, 2, 36, 2),
    Sketcher.Constraint("Horizontal", 35, 2, 37, 2),
    Sketcher.Constraint("Horizontal", 10, 2, 38, 2),
    Sketcher.Constraint("Horizontal", 13, 2, 39, 2),
    Sketcher.Constraint("Horizontal", 29, 2, 41, 2),
    Sketcher.Constraint("Horizontal", 28, 2, 43, 2),
    Sketcher.Constraint("Horizontal", 44, 2, 45, 2),
    Sketcher.Constraint("Horizontal", 42, 2, 47, 2),
    Sketcher.Constraint("Horizontal", 40, 2, 49, 2),
    Sketcher.Constraint("Horizontal", 22, 2, 50, 2),
    Sketcher.Constraint("Horizontal", 25, 2, 51, 2),
    Sketcher.Constraint("Horizontal", 52, 2, 53, 2),
    Sketcher.Constraint("Horizontal", 18, 2, 54, 2),
    Sketcher.Constraint("Horizontal", 48, 2, 55, 2),
    Sketcher.Constraint("Horizontal", 60, 2, 61, 2),
    Sketcher.Constraint("Horizontal", 59, 2, 62, 2),
    Sketcher.Constraint("Horizontal", 57, 2, 64, 2),
    Sketcher.Constraint("Vertical", 15, 2, 26, 2),
    Sketcher.Constraint("Vertical", 33, 2, 46, 2),
    Sketcher.Constraint("Vertical", 17, 2, 57, 2),
    Sketcher.Constraint("Vertical", 27, 2, 59, 2),
    Sketcher.Constraint("Vertical", 47, 2, 61, 2),
    Sketcher.Constraint("Vertical", 31, 2, 63, 2),
    Sketcher.Constraint("Equal", 12, 14),
    Sketcher.Constraint("Equal", 16, 20),
    Sketcher.Constraint("Equal", 20, 24),
    Sketcher.Constraint("Equal", 24, 30),
    Sketcher.Constraint("Equal", 28, 46),
    Sketcher.Constraint("Equal", 48, 13),
    Sketcher.Constraint("Equal", 44, 27),
    Sketcher.Constraint("Equal", 33, 58),
    Sketcher.Constraint("DistanceX", 1, 1, 1, 2, Q("144 in")),
    Sketcher.Constraint("DistanceX", 9, 2, 9, 1, Q("1 in")),
    Sketcher.Constraint("DistanceX", 26, 2, 26, 1, Q("3 in")),
    Sketcher.Constraint("DistanceX", 42, 2, 42, 1, Q("16 in")),
    Sketcher.Constraint("DistanceY", 19, 2, 19, 1, Q("22 in")),
    Sketcher.Constraint("DistanceX", 12, 2, 12, 1, Q("12.5 in")),
    Sketcher.Constraint("Distance", 7, Q("30.527001 mm")),
    Sketcher.Constraint("Distance", 4, Q("2686.376071 mm")),
    Sketcher.Constraint("DistanceY", 3, 1, 3, 2, Q("106.844502 mm")),
    Sketcher.Constraint("DistanceY", 15, 1, 15, 2, Q("258.233333 mm")),
    Sketcher.Constraint("DistanceY", 23, 2, 23, 1, Q("829.733333 mm")),
    Sketcher.Constraint("DistanceY", -1, 1, 0, 2, Q("1128.330991 mm")),
    Sketcher.Constraint("DistanceY", -1, 1, 8, 2, Q("1217.230991 mm")),
    Sketcher.Constraint("DistanceY", -1, 1, 60, 2, Q("2106.230991 mm")),
    Sketcher.Constraint("DistanceX", 0, 2, -1, 1, Q("7806.819005 mm")),
    Sketcher.Constraint("DistanceX", 7, 2, -1, 1, Q("7648.069005 mm")),
    Sketcher.Constraint("DistanceX", 10, 2, -1, 1, Q("7241.669005 mm")),
    Sketcher.Constraint("DistanceX", 14, 2, -1, 1, Q("6339.969005 mm")),
    Sketcher.Constraint("DistanceX", 18, 2, -1, 1, Q("6835.269005 mm")),
    Sketcher.Constraint("DistanceX", 22, 2, -1, 1, Q("6428.869005 mm")),
    Sketcher.Constraint("DistanceX", 30, 2, -1, 1, Q("5933.569005 mm")),
    Sketcher.Constraint("DistanceX", 34, 2, -1, 1, Q("4282.569005 mm")),
    Sketcher.Constraint("DistanceX", 37, 2, -1, 1, Q("4714.369005 mm")),
    Sketcher.Constraint("DistanceX", 41, 2, -1, 1, Q("5774.819005 mm")),
    Sketcher.Constraint("DistanceX", 49, 2, -1, 1, Q("5527.169005 mm")),
    Sketcher.Constraint("DistanceX", 53, 2, -1, 1, Q("5120.769005 mm")),
])
pad2 = body2.newObject("PartDesign::Pad", "Pad001")
pad2.Profile = sketch2
pad2.Length = Q("1.5 in")
body3 = doc.addObject("PartDesign::Body", "Body002")

# Sketch on XZ plane
sketch3 = body3.newObject("Sketcher::SketchObject", "Sketch002")
sketch3.AttachmentSupport = (doc.getObject("XZ_Plane002"), [""])
sketch3.MapMode = "FlatFace"
sketch3.addGeometry([
    Part.LineSegment(V(-1033, 4834, 0), V(-1033, 4745, 0)),
    Part.LineSegment(V(-1033, 4745, 0), V(-995, 4745, 0)),
    Part.LineSegment(V(-995, 4745, 0), V(-995, 4834, 0)),
    Part.LineSegment(V(-995, 4834, 0), V(-1033, 4834, 0)),
], False)
sketch3.addConstraint([
    Sketcher.Constraint("Coincident", 0, 2, 1, 1),
    Sketcher.Constraint("Coincident", 1, 2, 2, 1),
    Sketcher.Constraint("Coincident", 2, 2, 3, 1),
    Sketcher.Constraint("Coincident", 3, 2, 0, 1),
    Sketcher.Constraint("Vertical", 0),
    Sketcher.Constraint("Horizontal", 1),
    Sketcher.Constraint("Vertical", 2),
    Sketcher.Constraint("Horizontal", 3),
    Sketcher.Constraint("DistanceX", 1, 1, 1, 2, Q("1.5 in")),
    Sketcher.Constraint("DistanceY", 0, 2, 0, 1, Q("3.5 in")),
    Sketcher.Constraint("DistanceY", -1, 1, 0, 2, Q("4744.934082 mm")),
    Sketcher.Constraint("DistanceX", 1, 2, -1, 1, Q("995.020092 mm")),
])
pad3 = body3.newObject("PartDesign::Pad", "Pad002")
pad3.Profile = sketch3
pad3.Length = Q("12.5625 in")
body4 = doc.addObject("PartDesign::Body", "Body003")

# Sketch on XZ plane
sketch4 = body4.newObject("Sketcher::SketchObject", "Sketch003")
sketch4.AttachmentSupport = (doc.getObject("XZ_Plane003"), [""])
sketch4.MapMode = "FlatFace"
sketch4.addGeometry([
    Part.LineSegment(V(1626, 3895, 0), V(1832, 3757, 0)),  # 0
    Part.LineSegment(V(1832, 3757, 0), V(1832, 3864, 0)),  # 1
    Part.LineSegment(V(1832, 3864, 0), V(1675, 3969, 0)),  # 2
    Part.LineSegment(V(1675, 3969, 0), V(1337, 4194, 0)),  # 3
    Part.LineSegment(V(1337, 4194, 0), V(999, 4420, 0)),  # 4
    Part.LineSegment(V(999, 4420, 0), V(661, 4645, 0)),  # 5
    Part.LineSegment(V(661, 4645, 0), V(-15, 5096, 0)),  # 6
    Part.LineSegment(V(-15, 5096, 0), V(-354, 5322, 0)),  # 7
    Part.LineSegment(V(-354, 5322, 0), V(-403, 5354, 0)),  # 8
    Part.LineSegment(V(-403, 5354, 0), V(-403, 5248, 0)),  # 9
    Part.LineSegment(V(-403, 5248, 0), V(-65, 5022, 0)),  # 10
    Part.LineSegment(V(-65, 5022, 0), V(612, 4571, 0)),  # 11
    Part.LineSegment(V(612, 4571, 0), V(950, 4346, 0)),  # 12
    Part.LineSegment(V(950, 4346, 0), V(1626, 3895, 0)),  # 13
], False)
sketch4.addConstraint([
    Sketcher.Constraint("Coincident", 0, 2, 1, 1),
    Sketcher.Constraint("Coincident", 1, 2, 2, 1),
    Sketcher.Constraint("Coincident", 2, 2, 3, 1),
    Sketcher.Constraint("Coincident", 3, 2, 4, 1),
    Sketcher.Constraint("Coincident", 4, 2, 5, 1),
    Sketcher.Constraint("Coincident", 5, 2, 6, 1),
    Sketcher.Constraint("Coincident", 6, 2, 7, 1),
    Sketcher.Constraint("Coincident", 7, 2, 8, 1),
    Sketcher.Constraint("Coincident", 8, 2, 9, 1),
    Sketcher.Constraint("Coincident", 9, 2, 10, 1),
    Sketcher.Constraint("Coincident", 10, 2, 11, 1),
    Sketcher.Constraint("Coincident", 11, 2, 12, 1),
    Sketcher.Constraint("Coincident", 12, 2, 13, 1),
    Sketcher.Constraint("Coincident", 13, 2, 0, 1),
    Sketcher.Constraint("Vertical", 1),
    Sketcher.Constraint("Vertical", 9),
    Sketcher.Constraint("Parallel", 0, 2),
    Sketcher.Constraint("Parallel", 2, 3),
    Sketcher.Constraint("Parallel", 3, 4),
    Sketcher.Constraint("Parallel", 4, 5),
    Sketcher.Constraint("Parallel", 5, 6),
    Sketcher.Constraint("Parallel", 6, 7),
    Sketcher.Constraint("Parallel", 7, 8),
    Sketcher.Constraint("Parallel", 8, 10),
    Sketcher.Constraint("Parallel", 10, 11),
    Sketcher.Constraint("Parallel", 11, 12),
    Sketcher.Constraint("Parallel", 12, 13),
    Sketcher.Constraint("Equal", 3, 4),
    Sketcher.Constraint("Equal", 4, 5),
    Sketcher.Constraint("Equal", 5, 7),
    Sketcher.Constraint("Equal", 7, 10),
    Sketcher.Constraint("Equal", 6, 11),
    Sketcher.Constraint("Equal", 10, 12),
    Sketcher.Constraint("Equal", 11, 13),
    Sketcher.Constraint("DistanceY", 9, 2, 9, 1, Q("106.844502 mm")),
    Sketcher.Constraint("DistanceX", -1, 1, 11, 2, Q("24.0766 in")),
    Sketcher.Constraint("DistanceX", -1, 1, 3, 2, Q("1337.145299 mm")),
    Sketcher.Constraint("DistanceY", -1, 1, 9, 2, Q("5247.601301 mm")),
    Sketcher.Constraint("DistanceX", -1, 1, 0, 2, Q("1832.31463 mm")),
    Sketcher.Constraint("DistanceY", -1, 1, 5, 2, Q("4645.28376 mm")),
    Sketcher.Constraint("DistanceX", 7, 2, -1, 1, Q("353.571731 mm")),
    Sketcher.Constraint("DistanceY", -1, 1, 7, 2, Q("5321.570572 mm")),
])
pad4 = body4.newObject("PartDesign::Pad", "Pad003")
pad4.Profile = sketch4
pad4.Length = Q("1.5 in")

doc.recompute()
